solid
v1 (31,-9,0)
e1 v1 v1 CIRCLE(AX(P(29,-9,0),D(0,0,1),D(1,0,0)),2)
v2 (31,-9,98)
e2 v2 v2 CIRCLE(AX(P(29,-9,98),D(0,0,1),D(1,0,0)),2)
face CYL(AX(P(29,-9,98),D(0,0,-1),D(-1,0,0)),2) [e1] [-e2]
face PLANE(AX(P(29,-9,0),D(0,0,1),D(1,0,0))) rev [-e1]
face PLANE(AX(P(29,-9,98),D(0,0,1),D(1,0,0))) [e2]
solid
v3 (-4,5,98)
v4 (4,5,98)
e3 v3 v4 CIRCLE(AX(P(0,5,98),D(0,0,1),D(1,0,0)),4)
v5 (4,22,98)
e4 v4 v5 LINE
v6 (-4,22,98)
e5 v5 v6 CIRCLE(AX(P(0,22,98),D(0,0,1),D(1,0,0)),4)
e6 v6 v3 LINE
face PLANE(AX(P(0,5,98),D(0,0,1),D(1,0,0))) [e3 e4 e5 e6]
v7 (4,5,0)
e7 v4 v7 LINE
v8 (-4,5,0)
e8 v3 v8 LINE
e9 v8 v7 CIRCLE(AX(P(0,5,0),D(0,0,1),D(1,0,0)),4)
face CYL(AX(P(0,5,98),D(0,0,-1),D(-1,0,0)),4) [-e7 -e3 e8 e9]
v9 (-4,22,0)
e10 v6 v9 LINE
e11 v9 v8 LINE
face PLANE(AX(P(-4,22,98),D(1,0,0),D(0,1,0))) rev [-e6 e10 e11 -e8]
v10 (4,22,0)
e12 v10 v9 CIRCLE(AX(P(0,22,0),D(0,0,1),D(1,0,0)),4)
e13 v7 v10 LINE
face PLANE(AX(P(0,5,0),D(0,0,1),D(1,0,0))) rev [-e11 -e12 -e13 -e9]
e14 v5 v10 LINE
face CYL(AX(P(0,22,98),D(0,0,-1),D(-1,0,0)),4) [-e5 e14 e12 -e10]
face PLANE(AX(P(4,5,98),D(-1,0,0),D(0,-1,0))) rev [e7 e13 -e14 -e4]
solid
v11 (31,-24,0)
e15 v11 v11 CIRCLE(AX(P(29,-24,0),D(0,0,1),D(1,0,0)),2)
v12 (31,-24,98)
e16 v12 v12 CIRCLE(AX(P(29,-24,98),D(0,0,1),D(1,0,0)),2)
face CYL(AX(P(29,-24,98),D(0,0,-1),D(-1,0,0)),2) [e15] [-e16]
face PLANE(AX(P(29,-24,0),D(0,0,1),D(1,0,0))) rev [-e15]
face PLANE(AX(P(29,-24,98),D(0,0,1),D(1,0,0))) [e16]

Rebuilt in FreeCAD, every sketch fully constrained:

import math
import FreeCAD as App
import Part
import Sketcher

doc = App.newDocument("Part")
body = doc.addObject("PartDesign::Body", "Body")

# Sketch on XY plane
sketch1 = body.newObject("Sketcher::SketchObject", "Sketch")
sketch1.AttachmentSupport = (doc.getObject("XY_Plane"), [""])
sketch1.MapMode = "FlatFace"
sketch1.addGeometry(Part.Circle(App.Vector(29, -9, 0), App.Vector(0, 0, 1), 2), False)
sketch1.addConstraint([
    Sketcher.Constraint("Diameter", 0, 4.0),
    Sketcher.Constraint("DistanceX", -1, 1, 0, 3, 29.0),
    Sketcher.Constraint("DistanceY", 0, 3, -1, 1, 9.0),
])
pad1 = body.newObject("PartDesign::Pad", "Pad")
pad1.Profile = sketch1
pad1.Length = 98
body2 = doc.addObject("PartDesign::Body", "Body001")

# Sketch on XY plane
sketch2 = body2.newObject("Sketcher::SketchObject", "Sketch001")
sketch2.AttachmentSupport = (doc.getObject("XY_Plane001"), [""])
sketch2.MapMode = "FlatFace"
sketch2.addGeometry(Part.Circle(App.Vector(29, -24, 0), App.Vector(0, 0, 1), 2), False)
sketch2.addConstraint([
    Sketcher.Constraint("Diameter", 0, 4.0),
    Sketcher.Constraint("DistanceX", -1, 1, 0, 3, 29.0),
    Sketcher.Constraint("DistanceY", 0, 3, -1, 1, 24.0),
])
pad2 = body2.newObject("PartDesign::Pad", "Pad001")
pad2.Profile = sketch2
pad2.Length = 98
body3 = doc.addObject("PartDesign::Body", "Body002")

# Sketch on XY plane
sketch3 = body3.newObject("Sketcher::SketchObject", "Sketch002")
sketch3.AttachmentSupport = (doc.getObject("XY_Plane002"), [""])
sketch3.MapMode = "FlatFace"
sketch3.addGeometry([
    Part.LineSegment(App.Vector(4, 5, 0), App.Vector(4, 22, 0)),
    Part.ArcOfCircle(Part.Circle(App.Vector(0, 22, 0), App.Vector(0, 0, 1), 4), math.radians(0), math.radians(180)),
    Part.LineSegment(App.Vector(-4, 22, 0), App.Vector(-4, 5, 0)),
    Part.ArcOfCircle(Part.Circle(App.Vector(0, 5, 0), App.Vector(0, 0, 1), 4), math.radians(180), math.radians(360)),
], False)
sketch3.addConstraint([
    Sketcher.Constraint("Tangent", 0, 2, 1, 1),
    Sketcher.Constraint("Tangent", 1, 2, 2, 1),
    Sketcher.Constraint("Tangent", 2, 2, 3, 1),
    Sketcher.Constraint("Tangent", 3, 2, 0, 1),
    Sketcher.Constraint("Vertical", 0),
    Sketcher.Constraint("Vertical", 2),
    Sketcher.Constraint("PointOnObject", 1, 3, -2),
    Sketcher.Constraint("Radius", 1, 4.0),
    Sketcher.Constraint("DistanceY", 0, 1, 0, 2, 17.0),
    Sketcher.Constraint("DistanceY", -1, 1, 1, 3, 22.0),
])
pad3 = body3.newObject("PartDesign::Pad", "Pad002")
pad3.Profile = sketch3
pad3.Length = 98

doc.recompute()
